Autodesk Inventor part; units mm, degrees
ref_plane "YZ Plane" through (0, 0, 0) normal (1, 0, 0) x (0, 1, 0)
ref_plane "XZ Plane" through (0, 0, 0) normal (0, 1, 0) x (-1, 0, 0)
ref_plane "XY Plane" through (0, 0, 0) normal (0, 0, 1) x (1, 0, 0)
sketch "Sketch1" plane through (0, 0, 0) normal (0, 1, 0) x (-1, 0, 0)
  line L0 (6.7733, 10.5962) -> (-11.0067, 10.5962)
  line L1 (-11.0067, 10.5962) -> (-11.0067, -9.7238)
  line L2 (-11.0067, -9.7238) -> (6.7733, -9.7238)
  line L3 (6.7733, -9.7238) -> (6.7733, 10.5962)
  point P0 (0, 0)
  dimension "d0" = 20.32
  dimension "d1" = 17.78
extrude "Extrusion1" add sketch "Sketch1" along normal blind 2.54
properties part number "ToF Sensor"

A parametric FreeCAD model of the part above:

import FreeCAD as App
import Part
import Sketcher

V = App.Vector
Q = App.Units.Quantity


def add_polygon(sketch, points):
    """Adds a closed chain of lines whose ends are joined by coincident constraints."""
    first, n = sketch.GeometryCount, len(points)
    for a, b in zip(points, points[1:] + points[:1]):
        sketch.addGeometry(Part.LineSegment(App.Vector(*a, 0), App.Vector(*b, 0)), False)
    for i in range(n):
        sketch.addConstraint(Sketcher.Constraint("Coincident", first + i, 2, first + (i + 1) % n, 1))

doc = App.newDocument("Part")
body = doc.addObject("PartDesign::Body", "Body")

# Sketch on XZ plane
sketch1 = doc.addObject("Sketcher::SketchObject", "Sketch")
body.addObject(sketch1)
sketch1.AttachmentSupport = (doc.XZ_Plane, [""])
sketch1.MapMode = "FlatFace"
add_polygon(sketch1, [(-7, -10), (-7, 11), (11, 11), (11, -10)])  # lines 0-3
sketch1.addConstraint(Sketcher.Constraint("Vertical", 0))
sketch1.addConstraint(Sketcher.Constraint("Horizontal", 1))
sketch1.addConstraint(Sketcher.Constraint("Vertical", 2))
sketch1.addConstraint(Sketcher.Constraint("Horizontal", 3))
sketch1.addConstraint(Sketcher.Constraint("DistanceX", 1, 1, 1, 2, Q("0.7 in")))
sketch1.addConstraint(Sketcher.Constraint("DistanceY", 0, 1, 0, 2, Q("0.8 in")))
sketch1.addConstraint(Sketcher.Constraint("DistanceX", 0, 2, -1, 1, Q("6.7733 mm")))
sketch1.addConstraint(Sketcher.Constraint("DistanceY", -1, 1, 0, 2, Q("10.5962 mm")))
pad1 = doc.addObject("PartDesign::Pad", "Pad")
body.addObject(pad1)
pad1.Profile = sketch1
pad1.Length = Q("0.1 in")
pad1.Reversed = True

doc.recompute()
